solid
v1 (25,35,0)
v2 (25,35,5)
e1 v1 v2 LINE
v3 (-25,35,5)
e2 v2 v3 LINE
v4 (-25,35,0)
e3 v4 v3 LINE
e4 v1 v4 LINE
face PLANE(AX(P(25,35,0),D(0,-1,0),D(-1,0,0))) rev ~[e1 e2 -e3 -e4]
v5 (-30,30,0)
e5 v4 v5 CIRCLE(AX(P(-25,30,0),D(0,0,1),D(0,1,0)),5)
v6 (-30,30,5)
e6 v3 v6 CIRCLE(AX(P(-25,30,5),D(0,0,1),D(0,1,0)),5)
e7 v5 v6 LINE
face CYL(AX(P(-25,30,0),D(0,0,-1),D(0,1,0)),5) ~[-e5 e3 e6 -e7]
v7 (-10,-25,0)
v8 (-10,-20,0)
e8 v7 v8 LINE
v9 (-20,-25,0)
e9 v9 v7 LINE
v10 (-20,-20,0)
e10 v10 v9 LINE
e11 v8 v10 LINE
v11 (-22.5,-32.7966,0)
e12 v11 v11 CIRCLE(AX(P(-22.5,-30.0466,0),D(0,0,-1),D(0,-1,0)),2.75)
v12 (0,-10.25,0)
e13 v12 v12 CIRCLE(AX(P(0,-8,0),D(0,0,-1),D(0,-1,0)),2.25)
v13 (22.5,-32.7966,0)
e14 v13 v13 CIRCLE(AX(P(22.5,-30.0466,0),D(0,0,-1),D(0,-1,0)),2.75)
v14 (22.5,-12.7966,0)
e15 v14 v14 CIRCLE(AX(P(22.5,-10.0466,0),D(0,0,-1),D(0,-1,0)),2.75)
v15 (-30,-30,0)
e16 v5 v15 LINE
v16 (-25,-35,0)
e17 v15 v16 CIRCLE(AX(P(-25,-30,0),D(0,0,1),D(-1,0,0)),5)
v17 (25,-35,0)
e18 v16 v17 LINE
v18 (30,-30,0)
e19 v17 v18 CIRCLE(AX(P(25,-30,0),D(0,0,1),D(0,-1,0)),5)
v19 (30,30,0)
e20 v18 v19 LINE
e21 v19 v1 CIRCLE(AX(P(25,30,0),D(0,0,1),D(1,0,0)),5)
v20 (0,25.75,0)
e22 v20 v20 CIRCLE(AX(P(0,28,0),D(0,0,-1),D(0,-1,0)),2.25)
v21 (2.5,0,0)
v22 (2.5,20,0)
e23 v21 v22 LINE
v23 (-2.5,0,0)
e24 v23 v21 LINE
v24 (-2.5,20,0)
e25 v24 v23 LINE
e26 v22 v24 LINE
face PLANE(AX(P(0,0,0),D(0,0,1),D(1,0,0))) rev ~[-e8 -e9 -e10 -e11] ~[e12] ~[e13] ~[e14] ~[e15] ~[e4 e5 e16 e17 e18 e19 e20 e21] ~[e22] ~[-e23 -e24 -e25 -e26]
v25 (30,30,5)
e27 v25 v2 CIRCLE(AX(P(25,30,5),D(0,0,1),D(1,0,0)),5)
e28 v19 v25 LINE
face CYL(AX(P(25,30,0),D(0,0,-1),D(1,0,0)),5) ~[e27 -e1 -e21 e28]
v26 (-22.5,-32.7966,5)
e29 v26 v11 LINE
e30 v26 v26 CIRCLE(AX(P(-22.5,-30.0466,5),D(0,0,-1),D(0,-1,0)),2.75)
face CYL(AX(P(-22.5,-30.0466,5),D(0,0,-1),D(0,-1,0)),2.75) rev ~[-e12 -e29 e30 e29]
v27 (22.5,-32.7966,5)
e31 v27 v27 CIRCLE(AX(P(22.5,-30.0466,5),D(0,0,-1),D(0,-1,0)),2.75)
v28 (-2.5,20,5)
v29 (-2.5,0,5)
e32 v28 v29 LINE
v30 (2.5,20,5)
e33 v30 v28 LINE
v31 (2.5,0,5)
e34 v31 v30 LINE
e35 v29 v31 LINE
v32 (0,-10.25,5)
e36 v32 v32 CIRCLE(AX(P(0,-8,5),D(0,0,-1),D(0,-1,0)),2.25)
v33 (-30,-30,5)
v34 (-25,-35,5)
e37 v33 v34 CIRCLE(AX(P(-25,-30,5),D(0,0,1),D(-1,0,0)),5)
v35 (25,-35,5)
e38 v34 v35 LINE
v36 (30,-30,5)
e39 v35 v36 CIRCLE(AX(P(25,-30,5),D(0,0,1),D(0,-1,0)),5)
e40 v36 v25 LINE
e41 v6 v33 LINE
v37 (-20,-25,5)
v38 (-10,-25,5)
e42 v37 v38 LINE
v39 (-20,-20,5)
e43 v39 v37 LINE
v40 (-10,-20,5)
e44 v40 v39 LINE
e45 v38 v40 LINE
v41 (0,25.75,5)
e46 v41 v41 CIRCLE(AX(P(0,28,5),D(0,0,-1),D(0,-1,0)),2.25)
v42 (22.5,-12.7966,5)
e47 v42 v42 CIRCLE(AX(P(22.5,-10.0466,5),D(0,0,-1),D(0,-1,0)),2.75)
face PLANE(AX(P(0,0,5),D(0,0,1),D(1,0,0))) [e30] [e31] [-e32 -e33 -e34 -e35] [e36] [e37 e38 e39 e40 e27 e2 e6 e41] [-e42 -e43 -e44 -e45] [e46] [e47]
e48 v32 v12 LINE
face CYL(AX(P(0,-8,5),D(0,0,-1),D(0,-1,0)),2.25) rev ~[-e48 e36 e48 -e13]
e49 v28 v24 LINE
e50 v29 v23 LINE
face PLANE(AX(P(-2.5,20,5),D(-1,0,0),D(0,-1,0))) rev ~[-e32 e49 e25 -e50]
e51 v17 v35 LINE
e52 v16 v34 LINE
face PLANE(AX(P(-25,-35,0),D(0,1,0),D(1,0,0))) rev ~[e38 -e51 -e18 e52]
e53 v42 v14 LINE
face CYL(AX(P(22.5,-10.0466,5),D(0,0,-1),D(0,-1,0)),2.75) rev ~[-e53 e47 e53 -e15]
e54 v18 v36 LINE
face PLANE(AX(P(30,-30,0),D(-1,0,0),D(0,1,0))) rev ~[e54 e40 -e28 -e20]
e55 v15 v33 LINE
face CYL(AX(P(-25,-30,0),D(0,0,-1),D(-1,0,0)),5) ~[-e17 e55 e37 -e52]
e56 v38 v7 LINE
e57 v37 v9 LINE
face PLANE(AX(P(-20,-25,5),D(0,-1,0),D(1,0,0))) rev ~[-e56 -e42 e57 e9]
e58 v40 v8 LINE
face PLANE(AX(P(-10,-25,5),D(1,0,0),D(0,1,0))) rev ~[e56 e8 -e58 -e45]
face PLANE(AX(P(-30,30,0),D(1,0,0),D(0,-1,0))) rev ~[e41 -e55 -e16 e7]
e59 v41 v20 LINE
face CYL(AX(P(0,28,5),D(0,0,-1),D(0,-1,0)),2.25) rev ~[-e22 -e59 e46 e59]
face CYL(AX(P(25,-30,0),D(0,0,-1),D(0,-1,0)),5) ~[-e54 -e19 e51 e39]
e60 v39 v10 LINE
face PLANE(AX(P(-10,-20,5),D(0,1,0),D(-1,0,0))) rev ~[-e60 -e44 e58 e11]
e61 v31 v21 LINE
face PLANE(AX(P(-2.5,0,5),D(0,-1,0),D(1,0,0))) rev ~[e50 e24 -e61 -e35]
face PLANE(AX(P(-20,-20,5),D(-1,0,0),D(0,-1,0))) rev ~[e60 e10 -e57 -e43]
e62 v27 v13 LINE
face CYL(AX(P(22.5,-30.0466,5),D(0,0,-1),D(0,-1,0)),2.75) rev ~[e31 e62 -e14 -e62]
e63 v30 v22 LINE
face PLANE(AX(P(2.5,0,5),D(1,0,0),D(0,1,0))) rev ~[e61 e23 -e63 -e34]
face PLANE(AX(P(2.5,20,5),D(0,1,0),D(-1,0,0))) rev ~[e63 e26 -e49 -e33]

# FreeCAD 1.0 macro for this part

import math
import FreeCAD as App
import Part
import Sketcher

V = App.Vector
Q = App.Units.Quantity

doc = App.newDocument("Part")
params = doc.addObject("Spreadsheet::Sheet", "Params")
for row, (alias, value) in enumerate([
    ("sketch1_radius", "5 mm"),
    ("sketch1_height", "60 mm"),
    ("pad1_length", "5 mm"),
    ("sketch2_diameter", "5.5 mm"),
    ("hole_diameter", "5.5 mm"),
    ("hole_depth", "8 mm"),
    ("sketch3_width", "5 mm"),
    ("sketch3_height", "20 mm"),
    ("pocket1_length", "5 mm"),
    ("sketch4_diameter", "4.5 mm"),
    ("hole2_diameter", "4.5 mm"),
    ("hole2_depth", "8 mm"),
    ("sketch5_width", "10 mm"),
    ("sketch5_height", "5 mm"),
    ("pocket2_length", "5 mm"),
], start=1):
    params.set(f"A{row}", alias)
    params.set(f"B{row}", "=" + value)
    params.setAlias(f"B{row}", alias)

body = doc.addObject("PartDesign::Body", "Body")

# Sketch on XY plane
sketch1 = body.newObject("Sketcher::SketchObject", "Sketch")
sketch1.AttachmentSupport = (doc.getObject("XY_Plane"), [""])
sketch1.MapMode = "FlatFace"
sketch1.addGeometry([
    Part.ArcOfCircle(Part.Circle(V(-25, -30, 0), V(0, 0, 1), 5), math.radians(180), math.radians(270)),  # 0
    Part.LineSegment(V(-25, -35, 0), V(25, -35, 0)),  # 1
    Part.ArcOfCircle(Part.Circle(V(25, -30, 0), V(0, 0, 1), 5), math.radians(-90), math.radians(0)),  # 2
    Part.LineSegment(V(30, -30, 0), V(30, 30, 0)),  # 3
    Part.ArcOfCircle(Part.Circle(V(25, 30, 0), V(0, 0, 1), 5), math.radians(0), math.radians(90)),  # 4
    Part.LineSegment(V(25, 35, 0), V(-25, 35, 0)),  # 5
    Part.ArcOfCircle(Part.Circle(V(-25, 30, 0), V(0, 0, 1), 5), math.radians(90), math.radians(180)),  # 6
    Part.LineSegment(V(-30, 30, 0), V(-30, -30, 0)),  # 7
], False)
sketch1.addConstraint([
    Sketcher.Constraint("Tangent", 0, 2, 1, 1),
    Sketcher.Constraint("Tangent", 1, 2, 2, 1),
    Sketcher.Constraint("Tangent", 2, 2, 3, 1),
    Sketcher.Constraint("Tangent", 3, 2, 4, 1),
    Sketcher.Constraint("Tangent", 4, 2, 5, 1),
    Sketcher.Constraint("Tangent", 5, 2, 6, 1),
    Sketcher.Constraint("Tangent", 6, 2, 7, 1),
    Sketcher.Constraint("Tangent", 7, 2, 0, 1),
    Sketcher.Constraint("Horizontal", 1),
    Sketcher.Constraint("Vertical", 3),
    Sketcher.Constraint("Horizontal", 5),
    Sketcher.Constraint("Vertical", 7),
    Sketcher.Constraint("Equal", 0, 2),
    Sketcher.Constraint("Equal", 2, 4),
    Sketcher.Constraint("Equal", 4, 6),
    Sketcher.Constraint("Symmetric", 0, 3, 4, 3, -1, 1),
    Sketcher.Constraint("Radius", 0, Q("5 mm")),
    Sketcher.Constraint("DistanceY", 3, 1, 3, 2, Q("60 mm")),
    Sketcher.Constraint("DistanceX", 6, 2, 3, 2, Q("60 mm")),
])
sketch1.setExpression("Constraints[16]", "Params.sketch1_radius")
sketch1.setExpression("Constraints[17]", "Params.sketch1_height")
pad1 = body.newObject("PartDesign::Pad", "Pad")
pad1.Profile = sketch1
pad1.setExpression("Length", "Params.pad1_length")

# Sketch on XY plane
sketch2 = body.newObject("Sketcher::SketchObject", "Sketch001")
sketch2.AttachmentSupport = (doc.getObject("XY_Plane"), [""])
sketch2.MapMode = "FlatFace"
sketch2.AttachmentOffset = App.Placement(V(0, 0, 5), App.Rotation())
sketch2.addGeometry([
    Part.Circle(V(22.5, -10.0466, 0), V(0, 0, 1), 2.75),
    Part.Circle(V(22.5, -30.0466, 0), V(0, 0, 1), 2.75),
    Part.Circle(V(-22.5, -30.0466, 0), V(0, 0, 1), 2.75),
], False)
sketch2.addConstraint([
    Sketcher.Constraint("Equal", 0, 1),
    Sketcher.Constraint("Equal", 1, 2),
    Sketcher.Constraint("Symmetric", 1, 3, 2, 3, -2),
    Sketcher.Constraint("Vertical", 0, 3, 1, 3),
    Sketcher.Constraint("Diameter", 0, Q("5.5 mm")),
    Sketcher.Constraint("DistanceY", 1, 3, 0, 3, Q("20 mm")),
    Sketcher.Constraint("DistanceX", 2, 3, 1, 3, Q("45 mm")),
    Sketcher.Constraint("DistanceY", 0, 3, -1, 1, Q("10.0466 mm")),
])
sketch2.setExpression("Constraints[4]", "Params.sketch2_diameter")
doc.recompute()
hole = body.newObject("PartDesign::Hole", "Hole")
hole.Profile = sketch2
hole.ThreadType = "None"
hole.setExpression("Diameter", "Params.hole_diameter")
hole.DepthType = "Dimension"
hole.setExpression("Depth", "Params.hole_depth")
hole.DrillPoint = "Angled"
hole.DrillPointAngle = 118

# Sketch on XY plane
sketch3 = body.newObject("Sketcher::SketchObject", "Sketch002")
sketch3.AttachmentSupport = (doc.getObject("XY_Plane"), [""])
sketch3.MapMode = "FlatFace"
sketch3.AttachmentOffset = App.Placement(V(0, 0, 5), App.Rotation())
sketch3.addGeometry([
    Part.LineSegment(V(-2.5, 20, 0), V(-2.5, 0, 0)),
    Part.LineSegment(V(-2.5, 0, 0), V(2.5, 0, 0)),
    Part.LineSegment(V(2.5, 0, 0), V(2.5, 20, 0)),
    Part.LineSegment(V(2.5, 20, 0), V(-2.5, 20, 0)),
], False)
sketch3.addConstraint([
    Sketcher.Constraint("Coincident", 0, 2, 1, 1),
    Sketcher.Constraint("Coincident", 1, 2, 2, 1),
    Sketcher.Constraint("Coincident", 2, 2, 3, 1),
    Sketcher.Constraint("Coincident", 3, 2, 0, 1),
    Sketcher.Constraint("Vertical", 0),
    Sketcher.Constraint("Horizontal", 1),
    Sketcher.Constraint("Vertical", 2),
    Sketcher.Constraint("Horizontal", 3),
    Sketcher.Constraint("Symmetric", 0, 2, 1, 2, -1, 1),
    Sketcher.Constraint("DistanceX", 1, 1, 1, 2, Q("5 mm")),
    Sketcher.Constraint("DistanceY", 0, 2, 0, 1, Q("20 mm")),
])
sketch3.setExpression("Constraints[9]", "Params.sketch3_width")
sketch3.setExpression("Constraints[10]", "Params.sketch3_height")
pocket1 = body.newObject("PartDesign::Pocket", "Pocket")
pocket1.Profile = sketch3
pocket1.setExpression("Length", "Params.pocket1_length")

# Sketch on XY plane
sketch4 = body.newObject("Sketcher::SketchObject", "Sketch003")
sketch4.AttachmentSupport = (doc.getObject("XY_Plane"), [""])
sketch4.MapMode = "FlatFace"
sketch4.AttachmentOffset = App.Placement(V(0, 0, 5), App.Rotation())
sketch4.addGeometry([
    Part.Circle(V(0, 28, 0), V(0, 0, 1), 2.25),
    Part.Circle(V(0, -8, 0), V(0, 0, 1), 2.25),
], False)
sketch4.addConstraint([
    Sketcher.Constraint("Equal", 0, 1),
    Sketcher.Constraint("PointOnObject", 0, 3, -2),
    Sketcher.Constraint("PointOnObject", 1, 3, -2),
    Sketcher.Constraint("Diameter", 0, Q("4.5 mm")),
    Sketcher.Constraint("DistanceY", -1, 1, 0, 3, Q("28 mm")),
    Sketcher.Constraint("DistanceY", 1, 3, -1, 1, Q("8 mm")),
])
sketch4.setExpression("Constraints[3]", "Params.sketch4_diameter")
doc.recompute()
hole2 = body.newObject("PartDesign::Hole", "Hole001")
hole2.Profile = sketch4
hole2.ThreadType = "None"
hole2.setExpression("Diameter", "Params.hole2_diameter")
hole2.DepthType = "Dimension"
hole2.setExpression("Depth", "Params.hole2_depth")
hole2.DrillPoint = "Angled"
hole2.DrillPointAngle = 118

# Sketch on XY plane
sketch5 = body.newObject("Sketcher::SketchObject", "Sketch004")
sketch5.AttachmentSupport = (doc.getObject("XY_Plane"), [""])
sketch5.MapMode = "FlatFace"
sketch5.AttachmentOffset = App.Placement(V(0, 0, 5), App.Rotation())
sketch5.addGeometry([
    Part.LineSegment(V(-20, -20, 0), V(-20, -25, 0)),
    Part.LineSegment(V(-20, -25, 0), V(-10, -25, 0)),
    Part.LineSegment(V(-10, -25, 0), V(-10, -20, 0)),
    Part.LineSegment(V(-10, -20, 0), V(-20, -20, 0)),
], False)
sketch5.addConstraint([
    Sketcher.Constraint("Coincident", 0, 2, 1, 1),
    Sketcher.Constraint("Coincident", 1, 2, 2, 1),
    Sketcher.Constraint("Coincident", 2, 2, 3, 1),
    Sketcher.Constraint("Coincident", 3, 2, 0, 1),
    Sketcher.Constraint("Vertical", 0),
    Sketcher.Constraint("Horizontal", 1),
    Sketcher.Constraint("Vertical", 2),
    Sketcher.Constraint("Horizontal", 3),
    Sketcher.Constraint("DistanceX", 1, 1, 1, 2, Q("10 mm")),
    Sketcher.Constraint("DistanceY", 0, 2, 0, 1, Q("5 mm")),
    Sketcher.Constraint("DistanceX", 1, 2, -1, 1, Q("10 mm")),
    Sketcher.Constraint("DistanceY", 0, 2, -1, 1, Q("25 mm")),
])
sketch5.setExpression("Constraints[8]", "Params.sketch5_width")
sketch5.setExpression("Constraints[9]", "Params.sketch5_height")
pocket2 = body.newObject("PartDesign::Pocket", "Pocket001")
pocket2.Profile = sketch5
pocket2.setExpression("Length", "Params.pocket2_length")

doc.recompute()
